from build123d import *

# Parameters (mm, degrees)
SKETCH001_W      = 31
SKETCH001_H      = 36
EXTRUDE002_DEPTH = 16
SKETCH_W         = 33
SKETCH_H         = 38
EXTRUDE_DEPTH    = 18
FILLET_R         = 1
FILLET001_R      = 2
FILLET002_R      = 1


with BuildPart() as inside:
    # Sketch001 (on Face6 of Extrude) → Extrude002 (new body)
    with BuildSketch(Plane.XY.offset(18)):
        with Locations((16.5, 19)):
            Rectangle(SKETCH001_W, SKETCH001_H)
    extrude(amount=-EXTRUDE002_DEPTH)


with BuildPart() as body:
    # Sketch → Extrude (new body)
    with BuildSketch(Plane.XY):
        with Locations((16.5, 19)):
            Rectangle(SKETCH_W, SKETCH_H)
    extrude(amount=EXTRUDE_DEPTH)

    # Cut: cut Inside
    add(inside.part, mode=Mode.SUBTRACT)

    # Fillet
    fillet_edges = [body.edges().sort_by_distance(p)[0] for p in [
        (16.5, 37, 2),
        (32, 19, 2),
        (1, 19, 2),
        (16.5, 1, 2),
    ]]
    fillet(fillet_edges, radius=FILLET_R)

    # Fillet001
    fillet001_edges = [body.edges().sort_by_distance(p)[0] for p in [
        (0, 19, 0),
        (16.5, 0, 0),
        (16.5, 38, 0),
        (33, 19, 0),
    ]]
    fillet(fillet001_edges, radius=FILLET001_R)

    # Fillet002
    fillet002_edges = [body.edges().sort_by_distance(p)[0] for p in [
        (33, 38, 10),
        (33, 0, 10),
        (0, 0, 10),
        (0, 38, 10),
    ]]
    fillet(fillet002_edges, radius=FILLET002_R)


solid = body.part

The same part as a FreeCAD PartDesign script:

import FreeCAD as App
import Part
import Sketcher

V = App.Vector
Q = App.Units.Quantity


def edges_at(feature, points):
    """Names of the edges that pass closest to the given points."""
    edges = feature.Shape.Edges
    near = lambda p: min(range(len(edges)), key=lambda i: edges[i].distToShape(Part.Vertex(*p))[0])
    return sorted({f"Edge{near(p) + 1}" for p in points})

doc = App.newDocument("Part")
body = doc.addObject("PartDesign::Body", "Body")

# Sketch on XY plane
sketch1 = body.newObject("Sketcher::SketchObject", "Sketch")
sketch1.AttachmentSupport = (doc.getObject("XY_Plane"), [""])
sketch1.MapMode = "FlatFace"
sketch1.AttachmentOffset = App.Placement(V(0, 0, 18), App.Rotation())
sketch1.addGeometry([
    Part.LineSegment(V(1, 37, 0), V(1, 1, 0)),
    Part.LineSegment(V(1, 1, 0), V(32, 1, 0)),
    Part.LineSegment(V(32, 1, 0), V(32, 37, 0)),
    Part.LineSegment(V(32, 37, 0), V(1, 37, 0)),
], False)
sketch1.addConstraint([
    Sketcher.Constraint("Coincident", 0, 2, 1, 1),
    Sketcher.Constraint("Coincident", 1, 2, 2, 1),
    Sketcher.Constraint("Coincident", 2, 2, 3, 1),
    Sketcher.Constraint("Coincident", 3, 2, 0, 1),
    Sketcher.Constraint("Vertical", 0),
    Sketcher.Constraint("Horizontal", 1),
    Sketcher.Constraint("Vertical", 2),
    Sketcher.Constraint("Horizontal", 3),
    Sketcher.Constraint("DistanceX", 1, 1, 1, 2, Q("31 mm")),
    Sketcher.Constraint("DistanceY", 0, 2, 0, 1, Q("36 mm")),
    Sketcher.Constraint("DistanceX", -1, 1, 0, 2, Q("1 mm")),
    Sketcher.Constraint("DistanceY", -1, 1, 0, 2, Q("1 mm")),
])
pad1 = body.newObject("PartDesign::Pad", "Pad")
pad1.Profile = sketch1
pad1.Length = 16
pad1.Reversed = True
body2 = doc.addObject("PartDesign::Body", "Body001")

# Sketch on XY plane
sketch2 = body2.newObject("Sketcher::SketchObject", "Sketch001")
sketch2.AttachmentSupport = (doc.getObject("XY_Plane001"), [""])
sketch2.MapMode = "FlatFace"
sketch2.addGeometry([
    Part.LineSegment(V(0, 38, 0), V(0, 0, 0)),
    Part.LineSegment(V(0, 0, 0), V(33, 0, 0)),
    Part.LineSegment(V(33, 0, 0), V(33, 38, 0)),
    Part.LineSegment(V(33, 38, 0), V(0, 38, 0)),
], False)
sketch2.addConstraint([
    Sketcher.Constraint("Coincident", 0, 2, 1, 1),
    Sketcher.Constraint("Coincident", 1, 2, 2, 1),
    Sketcher.Constraint("Coincident", 2, 2, 3, 1),
    Sketcher.Constraint("Coincident", 3, 2, 0, 1),
    Sketcher.Constraint("Vertical", 0),
    Sketcher.Constraint("Horizontal", 1),
    Sketcher.Constraint("Vertical", 2),
    Sketcher.Constraint("Horizontal", 3),
    Sketcher.Constraint("Coincident", 0, 2, -1, 1),
    Sketcher.Constraint("DistanceX", 1, 1, 1, 2, Q("33 mm")),
    Sketcher.Constraint("DistanceY", 0, 2, 0, 1, Q("38 mm")),
])
pad2 = body2.newObject("PartDesign::Pad", "Pad001")
pad2.Profile = sketch2
pad2.Length = 18
doc.recompute()

boolean = body2.newObject("PartDesign::Boolean", "Boolean")
boolean.Type = "Cut"
boolean.addObjects([body])
doc.recompute()

fillet = body2.newObject("PartDesign::Fillet", "Fillet")
fillet.Base = (boolean, edges_at(boolean, [
    (16.5, 37, 2),
    (32, 19, 2),
    (1, 19, 2),
    (16.5, 1, 2),
]))
fillet.Radius = 1
doc.recompute()

fillet2 = body2.newObject("PartDesign::Fillet", "Fillet001")
fillet2.Base = (fillet, edges_at(fillet, [
    (0, 19, 0),
    (16.5, 0, 0),
    (16.5, 38, 0),
    (33, 19, 0),
]))
fillet2.Radius = 2
doc.recompute()

fillet3 = body2.newObject("PartDesign::Fillet", "Fillet002")
fillet3.Base = (fillet2, edges_at(fillet2, [
    (33, 38, 10),
    (33, 0, 10),
    (0, 0, 10),
    (0, 38, 10),
]))
fillet3.Radius = 1

doc.recompute()
